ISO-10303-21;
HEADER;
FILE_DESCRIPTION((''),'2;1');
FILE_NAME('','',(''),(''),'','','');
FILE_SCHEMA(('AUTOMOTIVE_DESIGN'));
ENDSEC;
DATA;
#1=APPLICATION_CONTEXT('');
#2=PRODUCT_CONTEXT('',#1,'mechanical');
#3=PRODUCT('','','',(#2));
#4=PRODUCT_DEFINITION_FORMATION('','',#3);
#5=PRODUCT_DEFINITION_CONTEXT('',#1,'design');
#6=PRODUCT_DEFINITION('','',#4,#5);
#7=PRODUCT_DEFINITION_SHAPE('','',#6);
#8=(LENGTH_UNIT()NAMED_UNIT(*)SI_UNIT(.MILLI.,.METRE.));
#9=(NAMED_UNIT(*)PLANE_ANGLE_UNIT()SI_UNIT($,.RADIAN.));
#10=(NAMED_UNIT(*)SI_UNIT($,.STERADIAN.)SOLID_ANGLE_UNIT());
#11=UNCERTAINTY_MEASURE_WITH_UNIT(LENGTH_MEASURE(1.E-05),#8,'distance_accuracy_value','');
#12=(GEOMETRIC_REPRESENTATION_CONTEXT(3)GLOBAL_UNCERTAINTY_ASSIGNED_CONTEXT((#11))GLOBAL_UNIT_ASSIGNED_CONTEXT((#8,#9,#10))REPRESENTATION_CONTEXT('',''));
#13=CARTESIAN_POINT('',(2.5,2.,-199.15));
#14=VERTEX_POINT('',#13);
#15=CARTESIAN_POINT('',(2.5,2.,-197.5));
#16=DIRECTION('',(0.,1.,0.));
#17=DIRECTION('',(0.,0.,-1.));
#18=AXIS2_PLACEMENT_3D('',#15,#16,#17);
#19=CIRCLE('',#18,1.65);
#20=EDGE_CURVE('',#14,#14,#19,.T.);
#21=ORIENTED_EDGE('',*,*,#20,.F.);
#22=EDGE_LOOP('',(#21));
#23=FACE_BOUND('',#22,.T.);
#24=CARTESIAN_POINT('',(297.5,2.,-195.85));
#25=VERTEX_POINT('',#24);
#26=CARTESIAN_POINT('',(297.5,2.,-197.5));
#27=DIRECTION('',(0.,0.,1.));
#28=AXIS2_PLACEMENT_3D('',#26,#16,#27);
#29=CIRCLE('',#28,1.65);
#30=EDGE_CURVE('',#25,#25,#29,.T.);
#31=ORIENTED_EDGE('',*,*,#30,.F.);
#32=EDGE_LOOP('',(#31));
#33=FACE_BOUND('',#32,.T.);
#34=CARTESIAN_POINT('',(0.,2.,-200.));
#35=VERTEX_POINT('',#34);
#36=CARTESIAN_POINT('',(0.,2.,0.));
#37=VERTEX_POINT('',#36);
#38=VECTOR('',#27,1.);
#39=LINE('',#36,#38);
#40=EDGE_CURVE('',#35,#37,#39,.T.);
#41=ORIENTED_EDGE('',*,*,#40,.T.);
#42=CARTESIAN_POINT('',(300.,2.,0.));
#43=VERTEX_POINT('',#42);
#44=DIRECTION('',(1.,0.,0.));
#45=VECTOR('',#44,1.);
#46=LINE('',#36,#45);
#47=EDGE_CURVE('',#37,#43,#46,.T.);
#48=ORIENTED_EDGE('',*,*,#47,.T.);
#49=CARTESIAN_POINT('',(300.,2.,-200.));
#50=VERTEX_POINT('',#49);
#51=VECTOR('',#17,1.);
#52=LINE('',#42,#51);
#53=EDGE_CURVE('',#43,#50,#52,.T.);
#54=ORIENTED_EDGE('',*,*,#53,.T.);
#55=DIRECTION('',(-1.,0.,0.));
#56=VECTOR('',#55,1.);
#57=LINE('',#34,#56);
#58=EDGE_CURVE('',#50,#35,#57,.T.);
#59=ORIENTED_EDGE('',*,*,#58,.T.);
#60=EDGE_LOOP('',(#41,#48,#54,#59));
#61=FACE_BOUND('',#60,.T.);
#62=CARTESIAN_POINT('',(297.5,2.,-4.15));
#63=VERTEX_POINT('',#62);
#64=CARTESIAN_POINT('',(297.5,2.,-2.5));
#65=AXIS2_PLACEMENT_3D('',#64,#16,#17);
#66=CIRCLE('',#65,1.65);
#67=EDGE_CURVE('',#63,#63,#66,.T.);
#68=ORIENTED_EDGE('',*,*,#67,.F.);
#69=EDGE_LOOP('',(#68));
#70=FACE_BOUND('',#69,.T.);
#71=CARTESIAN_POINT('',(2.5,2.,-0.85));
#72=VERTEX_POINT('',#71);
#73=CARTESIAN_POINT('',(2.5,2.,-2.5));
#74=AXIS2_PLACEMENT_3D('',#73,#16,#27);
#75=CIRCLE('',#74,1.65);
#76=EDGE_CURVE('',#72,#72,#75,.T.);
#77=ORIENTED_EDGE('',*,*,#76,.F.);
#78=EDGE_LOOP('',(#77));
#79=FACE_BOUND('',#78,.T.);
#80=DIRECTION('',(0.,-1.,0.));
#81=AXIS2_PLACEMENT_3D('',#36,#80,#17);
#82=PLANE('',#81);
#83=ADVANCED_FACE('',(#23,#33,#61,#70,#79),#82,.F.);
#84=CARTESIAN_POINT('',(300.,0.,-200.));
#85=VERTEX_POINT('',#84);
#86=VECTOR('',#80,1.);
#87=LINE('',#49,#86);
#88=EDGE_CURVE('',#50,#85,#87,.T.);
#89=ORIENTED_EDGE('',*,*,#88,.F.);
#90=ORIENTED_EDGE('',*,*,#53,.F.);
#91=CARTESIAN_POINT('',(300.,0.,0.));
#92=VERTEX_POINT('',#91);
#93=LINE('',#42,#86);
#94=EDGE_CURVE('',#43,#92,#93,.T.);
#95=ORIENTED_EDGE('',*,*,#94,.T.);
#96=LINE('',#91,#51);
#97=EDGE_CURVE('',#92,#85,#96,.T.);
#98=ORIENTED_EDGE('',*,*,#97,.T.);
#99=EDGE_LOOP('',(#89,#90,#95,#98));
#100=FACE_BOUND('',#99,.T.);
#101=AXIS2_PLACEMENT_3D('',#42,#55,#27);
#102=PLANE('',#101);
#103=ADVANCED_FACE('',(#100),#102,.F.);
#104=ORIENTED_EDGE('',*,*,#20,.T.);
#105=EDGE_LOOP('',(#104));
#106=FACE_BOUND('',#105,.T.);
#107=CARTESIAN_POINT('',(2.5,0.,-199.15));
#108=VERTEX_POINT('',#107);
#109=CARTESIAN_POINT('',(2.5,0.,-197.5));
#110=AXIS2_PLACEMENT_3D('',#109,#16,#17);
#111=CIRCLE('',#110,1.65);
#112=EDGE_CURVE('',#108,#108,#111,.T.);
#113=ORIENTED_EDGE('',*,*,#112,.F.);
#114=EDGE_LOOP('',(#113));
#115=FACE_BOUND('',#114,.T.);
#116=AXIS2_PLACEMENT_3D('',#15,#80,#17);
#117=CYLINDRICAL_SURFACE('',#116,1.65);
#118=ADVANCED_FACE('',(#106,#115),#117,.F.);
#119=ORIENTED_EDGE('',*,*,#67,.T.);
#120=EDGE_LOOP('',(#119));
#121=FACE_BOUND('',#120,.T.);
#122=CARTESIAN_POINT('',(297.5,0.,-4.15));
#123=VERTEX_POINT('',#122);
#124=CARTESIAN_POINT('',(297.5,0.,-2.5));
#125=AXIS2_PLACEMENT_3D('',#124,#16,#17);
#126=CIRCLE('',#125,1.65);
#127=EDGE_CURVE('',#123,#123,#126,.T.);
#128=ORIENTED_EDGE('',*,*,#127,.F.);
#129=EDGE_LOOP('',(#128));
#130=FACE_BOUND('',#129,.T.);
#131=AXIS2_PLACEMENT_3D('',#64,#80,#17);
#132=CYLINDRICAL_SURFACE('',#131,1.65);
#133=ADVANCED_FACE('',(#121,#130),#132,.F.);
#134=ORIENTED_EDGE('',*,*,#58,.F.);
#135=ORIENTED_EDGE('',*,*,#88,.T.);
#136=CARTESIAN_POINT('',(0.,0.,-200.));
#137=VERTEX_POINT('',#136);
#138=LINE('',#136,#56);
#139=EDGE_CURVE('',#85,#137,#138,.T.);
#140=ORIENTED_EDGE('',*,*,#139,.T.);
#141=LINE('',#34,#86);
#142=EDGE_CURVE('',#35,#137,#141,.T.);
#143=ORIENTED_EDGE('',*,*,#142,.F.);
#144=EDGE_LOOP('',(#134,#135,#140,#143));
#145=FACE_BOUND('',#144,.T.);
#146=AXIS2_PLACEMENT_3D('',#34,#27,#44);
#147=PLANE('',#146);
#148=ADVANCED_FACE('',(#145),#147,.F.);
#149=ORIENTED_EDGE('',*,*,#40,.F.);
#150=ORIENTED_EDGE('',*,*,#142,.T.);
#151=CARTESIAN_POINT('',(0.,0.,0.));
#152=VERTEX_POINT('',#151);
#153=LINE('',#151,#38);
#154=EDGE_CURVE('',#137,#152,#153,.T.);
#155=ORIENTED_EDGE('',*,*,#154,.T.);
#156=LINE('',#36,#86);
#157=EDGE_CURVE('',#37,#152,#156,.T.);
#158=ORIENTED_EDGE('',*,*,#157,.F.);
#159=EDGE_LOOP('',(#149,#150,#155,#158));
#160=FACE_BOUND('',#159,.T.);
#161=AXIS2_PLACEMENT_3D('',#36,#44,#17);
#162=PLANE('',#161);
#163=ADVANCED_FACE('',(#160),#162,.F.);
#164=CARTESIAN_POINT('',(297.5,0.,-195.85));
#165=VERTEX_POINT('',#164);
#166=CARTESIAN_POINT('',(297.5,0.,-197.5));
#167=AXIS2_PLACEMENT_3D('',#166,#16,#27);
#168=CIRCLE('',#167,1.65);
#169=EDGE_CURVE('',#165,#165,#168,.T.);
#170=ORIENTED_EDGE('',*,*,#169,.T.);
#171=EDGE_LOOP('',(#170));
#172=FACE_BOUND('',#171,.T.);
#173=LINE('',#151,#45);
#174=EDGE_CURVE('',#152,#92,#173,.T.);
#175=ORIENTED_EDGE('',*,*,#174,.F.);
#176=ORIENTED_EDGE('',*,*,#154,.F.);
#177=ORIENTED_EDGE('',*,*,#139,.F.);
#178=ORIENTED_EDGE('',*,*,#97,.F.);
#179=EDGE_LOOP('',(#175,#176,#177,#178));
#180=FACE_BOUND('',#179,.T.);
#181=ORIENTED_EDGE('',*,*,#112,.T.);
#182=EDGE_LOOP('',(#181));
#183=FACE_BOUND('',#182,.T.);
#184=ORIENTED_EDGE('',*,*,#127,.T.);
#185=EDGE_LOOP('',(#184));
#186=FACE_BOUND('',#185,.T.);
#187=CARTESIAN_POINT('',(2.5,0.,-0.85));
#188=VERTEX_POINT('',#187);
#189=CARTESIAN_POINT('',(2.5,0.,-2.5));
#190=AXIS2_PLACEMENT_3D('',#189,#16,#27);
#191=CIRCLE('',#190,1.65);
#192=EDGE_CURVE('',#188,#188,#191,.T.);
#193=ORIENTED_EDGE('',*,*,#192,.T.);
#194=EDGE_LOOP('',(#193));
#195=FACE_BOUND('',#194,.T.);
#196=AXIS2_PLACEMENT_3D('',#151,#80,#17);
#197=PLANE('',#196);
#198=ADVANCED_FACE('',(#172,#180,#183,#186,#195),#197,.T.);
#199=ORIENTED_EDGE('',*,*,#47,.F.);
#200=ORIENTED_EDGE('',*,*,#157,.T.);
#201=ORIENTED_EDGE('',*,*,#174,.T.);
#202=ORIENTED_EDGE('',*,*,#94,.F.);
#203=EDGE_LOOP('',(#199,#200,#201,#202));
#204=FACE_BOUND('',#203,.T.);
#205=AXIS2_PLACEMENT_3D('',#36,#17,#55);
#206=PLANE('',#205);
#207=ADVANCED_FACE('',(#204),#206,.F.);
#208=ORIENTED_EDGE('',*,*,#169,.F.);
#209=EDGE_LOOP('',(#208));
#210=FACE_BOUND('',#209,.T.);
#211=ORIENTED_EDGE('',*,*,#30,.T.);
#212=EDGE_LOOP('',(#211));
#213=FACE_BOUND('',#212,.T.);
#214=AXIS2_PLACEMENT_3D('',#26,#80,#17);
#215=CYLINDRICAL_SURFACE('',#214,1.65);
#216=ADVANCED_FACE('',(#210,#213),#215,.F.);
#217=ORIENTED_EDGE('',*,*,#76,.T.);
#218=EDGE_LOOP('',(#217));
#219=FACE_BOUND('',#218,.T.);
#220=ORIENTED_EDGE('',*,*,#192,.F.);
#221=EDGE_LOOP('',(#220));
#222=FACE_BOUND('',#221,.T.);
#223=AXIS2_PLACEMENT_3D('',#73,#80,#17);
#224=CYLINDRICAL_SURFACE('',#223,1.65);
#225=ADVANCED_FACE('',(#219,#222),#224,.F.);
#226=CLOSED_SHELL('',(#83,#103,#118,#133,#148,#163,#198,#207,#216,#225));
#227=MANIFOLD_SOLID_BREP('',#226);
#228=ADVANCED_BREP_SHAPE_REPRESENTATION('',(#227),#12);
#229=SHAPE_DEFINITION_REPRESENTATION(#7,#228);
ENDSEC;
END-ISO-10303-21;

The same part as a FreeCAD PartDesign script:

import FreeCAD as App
import Part
import Sketcher
Q = App.Units.Quantity

doc = App.newDocument("Part")
params = doc.addObject("Spreadsheet::Sheet", "Params")
for row, (alias, value) in enumerate([
    ("sketch1_diameter", "3.3 mm"),
    ("sketch1_width", "300 mm"),
    ("sketch1_height", "200 mm"),
    ("pad1_length", "2 mm"),
], start=1):
    params.set(f"A{row}", alias)
    params.set(f"B{row}", "=" + value)
    params.setAlias(f"B{row}", alias)

body = doc.addObject("PartDesign::Body", "Body")

sketch1 = body.newObject("Sketcher::SketchObject", "Sketch")
sketch1.AttachmentSupport = (doc.getObject("XZ_Plane"), [""])
sketch1.MapMode = "FlatFace"
sketch1.addGeometry(Part.LineSegment(App.Vector(0, -200, 0), App.Vector(0, 0, 0)), False)
sketch1.addGeometry(Part.LineSegment(App.Vector(0, 0, 0), App.Vector(300, 0, 0)), False)
sketch1.addGeometry(Part.LineSegment(App.Vector(300, 0, 0), App.Vector(300, -200, 0)), False)
sketch1.addGeometry(Part.LineSegment(App.Vector(300, -200, 0), App.Vector(0, -200, 0)), False)
sketch1.addGeometry(Part.Circle(App.Vector(2.5, -2.5, 0), App.Vector(0, 0, 1), 1.6), False)
sketch1.addGeometry(Part.Circle(App.Vector(297.5, -2.5, 0), App.Vector(0, 0, 1), 1.6), False)
sketch1.addGeometry(Part.Circle(App.Vector(2.5, -197.5, 0), App.Vector(0, 0, 1), 1.6), False)
sketch1.addGeometry(Part.Circle(App.Vector(297.5, -197.5, 0), App.Vector(0, 0, 1), 1.6), False)
sketch1.addConstraint(Sketcher.Constraint("Coincident", 0, 2, 1, 1))
sketch1.addConstraint(Sketcher.Constraint("Coincident", 1, 2, 2, 1))
sketch1.addConstraint(Sketcher.Constraint("Coincident", 2, 2, 3, 1))
sketch1.addConstraint(Sketcher.Constraint("Coincident", 3, 2, 0, 1))
sketch1.addConstraint(Sketcher.Constraint("Vertical", 0))
sketch1.addConstraint(Sketcher.Constraint("Horizontal", 1))
sketch1.addConstraint(Sketcher.Constraint("Vertical", 2))
sketch1.addConstraint(Sketcher.Constraint("Horizontal", 3))
sketch1.addConstraint(Sketcher.Constraint("Coincident", 0, 2, -1, 1))
sketch1.addConstraint(Sketcher.Constraint("Equal", 4, 5))
sketch1.addConstraint(Sketcher.Constraint("Equal", 5, 6))
sketch1.addConstraint(Sketcher.Constraint("Equal", 6, 7))
sketch1.addConstraint(Sketcher.Constraint("Horizontal", 4, 3, 5, 3))
sketch1.addConstraint(Sketcher.Constraint("Horizontal", 6, 3, 7, 3))
sketch1.addConstraint(Sketcher.Constraint("Vertical", 4, 3, 6, 3))
sketch1.addConstraint(Sketcher.Constraint("Vertical", 5, 3, 7, 3))
sketch1.addConstraint(Sketcher.Constraint("Diameter", 4, Q("3.3 mm")))
sketch1.addConstraint(Sketcher.Constraint("DistanceX", 1, 1, 1, 2, Q("300 mm")))
sketch1.addConstraint(Sketcher.Constraint("DistanceY", 0, 1, 0, 2, Q("200 mm")))
sketch1.addConstraint(Sketcher.Constraint("DistanceX", 4, 3, 5, 3, Q("295 mm")))
sketch1.addConstraint(Sketcher.Constraint("DistanceY", 6, 3, 4, 3, Q("195 mm")))
sketch1.addConstraint(Sketcher.Constraint("DistanceX", -1, 1, 4, 3, Q("2.5 mm")))
sketch1.addConstraint(Sketcher.Constraint("DistanceY", 4, 3, -1, 1, Q("2.5 mm")))
sketch1.setExpression("Constraints[16]", "Params.sketch1_diameter")
sketch1.setExpression("Constraints[17]", "Params.sketch1_width")
sketch1.setExpression("Constraints[18]", "Params.sketch1_height")
pad1 = body.newObject("PartDesign::Pad", "Pad")
pad1.Profile = sketch1
pad1.setExpression("Length", "Params.pad1_length")
pad1.Reversed = True

doc.recompute()
